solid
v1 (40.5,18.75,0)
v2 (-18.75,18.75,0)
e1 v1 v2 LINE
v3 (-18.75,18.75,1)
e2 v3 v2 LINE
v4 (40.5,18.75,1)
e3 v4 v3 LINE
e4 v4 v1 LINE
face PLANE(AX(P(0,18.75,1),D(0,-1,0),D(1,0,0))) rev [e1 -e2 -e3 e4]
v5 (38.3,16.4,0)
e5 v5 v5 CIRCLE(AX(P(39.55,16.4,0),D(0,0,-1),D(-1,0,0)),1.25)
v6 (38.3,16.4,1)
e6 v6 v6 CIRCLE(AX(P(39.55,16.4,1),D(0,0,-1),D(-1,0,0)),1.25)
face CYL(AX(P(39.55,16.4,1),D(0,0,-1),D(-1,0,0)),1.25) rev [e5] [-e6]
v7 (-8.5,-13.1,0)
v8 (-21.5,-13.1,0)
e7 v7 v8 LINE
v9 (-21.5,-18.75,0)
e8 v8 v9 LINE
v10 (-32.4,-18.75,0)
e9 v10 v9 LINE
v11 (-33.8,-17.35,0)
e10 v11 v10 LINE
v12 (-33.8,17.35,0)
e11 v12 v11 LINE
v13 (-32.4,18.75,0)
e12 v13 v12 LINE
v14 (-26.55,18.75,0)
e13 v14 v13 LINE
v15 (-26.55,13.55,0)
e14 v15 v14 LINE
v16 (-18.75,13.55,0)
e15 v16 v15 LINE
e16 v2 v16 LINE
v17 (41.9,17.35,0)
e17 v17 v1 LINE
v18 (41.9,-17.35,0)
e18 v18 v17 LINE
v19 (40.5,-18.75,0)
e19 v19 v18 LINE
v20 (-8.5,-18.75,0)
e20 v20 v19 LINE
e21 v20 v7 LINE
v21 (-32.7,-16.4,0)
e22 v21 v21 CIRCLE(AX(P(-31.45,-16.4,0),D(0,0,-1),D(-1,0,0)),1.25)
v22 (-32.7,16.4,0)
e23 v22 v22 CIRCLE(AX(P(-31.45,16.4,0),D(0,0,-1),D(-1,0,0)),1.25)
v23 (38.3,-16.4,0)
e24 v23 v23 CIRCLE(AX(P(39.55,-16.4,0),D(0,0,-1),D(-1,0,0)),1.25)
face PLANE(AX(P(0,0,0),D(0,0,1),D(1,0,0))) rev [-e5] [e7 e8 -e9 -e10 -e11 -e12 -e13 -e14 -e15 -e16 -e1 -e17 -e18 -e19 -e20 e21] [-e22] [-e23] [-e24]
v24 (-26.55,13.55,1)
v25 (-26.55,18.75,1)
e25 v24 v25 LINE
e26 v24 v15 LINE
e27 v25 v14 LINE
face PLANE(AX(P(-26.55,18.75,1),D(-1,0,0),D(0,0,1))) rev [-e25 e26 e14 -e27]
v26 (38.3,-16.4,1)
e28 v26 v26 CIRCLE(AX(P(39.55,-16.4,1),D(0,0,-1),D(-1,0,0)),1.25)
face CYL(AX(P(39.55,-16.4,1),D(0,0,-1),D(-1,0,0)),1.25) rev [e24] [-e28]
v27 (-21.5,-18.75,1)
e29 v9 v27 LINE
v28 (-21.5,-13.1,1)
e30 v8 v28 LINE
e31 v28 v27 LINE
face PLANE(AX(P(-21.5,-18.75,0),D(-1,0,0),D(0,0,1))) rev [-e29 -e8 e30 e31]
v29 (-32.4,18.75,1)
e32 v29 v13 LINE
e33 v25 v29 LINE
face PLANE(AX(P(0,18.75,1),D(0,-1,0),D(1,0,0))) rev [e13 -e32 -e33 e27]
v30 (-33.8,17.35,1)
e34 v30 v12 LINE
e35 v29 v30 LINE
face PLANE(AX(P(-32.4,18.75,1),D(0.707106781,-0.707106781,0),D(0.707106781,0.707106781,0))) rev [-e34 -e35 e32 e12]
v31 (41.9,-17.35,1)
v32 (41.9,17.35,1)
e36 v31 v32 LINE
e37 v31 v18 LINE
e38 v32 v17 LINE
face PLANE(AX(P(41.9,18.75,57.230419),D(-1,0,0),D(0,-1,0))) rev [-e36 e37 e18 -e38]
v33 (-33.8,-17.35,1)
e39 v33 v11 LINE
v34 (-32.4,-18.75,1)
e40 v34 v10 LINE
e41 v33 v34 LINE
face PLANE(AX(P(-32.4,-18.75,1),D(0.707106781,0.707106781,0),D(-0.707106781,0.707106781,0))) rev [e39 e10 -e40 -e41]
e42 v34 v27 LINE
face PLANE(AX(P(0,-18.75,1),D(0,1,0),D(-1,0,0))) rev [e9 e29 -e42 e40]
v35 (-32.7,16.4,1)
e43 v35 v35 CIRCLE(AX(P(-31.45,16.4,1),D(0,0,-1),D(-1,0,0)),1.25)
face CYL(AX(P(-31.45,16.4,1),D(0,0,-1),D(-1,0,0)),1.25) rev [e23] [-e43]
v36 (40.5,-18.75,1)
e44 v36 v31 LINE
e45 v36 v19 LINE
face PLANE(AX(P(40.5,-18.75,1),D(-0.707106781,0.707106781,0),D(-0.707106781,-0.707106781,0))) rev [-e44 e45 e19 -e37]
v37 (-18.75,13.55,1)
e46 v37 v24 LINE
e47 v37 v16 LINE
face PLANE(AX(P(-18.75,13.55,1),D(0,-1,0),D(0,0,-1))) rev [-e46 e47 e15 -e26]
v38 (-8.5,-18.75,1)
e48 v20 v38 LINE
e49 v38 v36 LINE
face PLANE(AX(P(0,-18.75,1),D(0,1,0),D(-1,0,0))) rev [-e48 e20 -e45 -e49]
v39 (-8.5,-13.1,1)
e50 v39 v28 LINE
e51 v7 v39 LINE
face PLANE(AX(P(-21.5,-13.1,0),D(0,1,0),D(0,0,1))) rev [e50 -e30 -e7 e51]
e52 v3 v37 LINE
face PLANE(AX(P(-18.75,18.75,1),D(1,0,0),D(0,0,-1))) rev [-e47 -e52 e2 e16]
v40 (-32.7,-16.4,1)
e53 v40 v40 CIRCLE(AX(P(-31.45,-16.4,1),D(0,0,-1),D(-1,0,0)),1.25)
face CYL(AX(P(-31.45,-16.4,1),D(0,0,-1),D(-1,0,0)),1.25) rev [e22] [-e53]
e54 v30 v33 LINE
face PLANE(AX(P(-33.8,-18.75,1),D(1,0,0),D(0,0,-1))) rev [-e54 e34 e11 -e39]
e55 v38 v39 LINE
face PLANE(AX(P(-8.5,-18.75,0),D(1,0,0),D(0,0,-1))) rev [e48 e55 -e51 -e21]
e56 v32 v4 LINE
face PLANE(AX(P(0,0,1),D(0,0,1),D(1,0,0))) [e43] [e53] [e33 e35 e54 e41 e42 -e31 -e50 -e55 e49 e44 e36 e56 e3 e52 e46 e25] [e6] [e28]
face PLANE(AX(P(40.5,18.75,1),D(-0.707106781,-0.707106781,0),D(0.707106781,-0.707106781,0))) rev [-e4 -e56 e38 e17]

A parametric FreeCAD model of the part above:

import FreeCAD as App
import Part
import Sketcher

V = App.Vector
Q = App.Units.Quantity

doc = App.newDocument("Part")
params = doc.addObject("Spreadsheet::Sheet", "Params")
for row, (alias, value) in enumerate([
    ("sketch1_width", "33.8 mm"),
    ("sketch1_height", "37.5 mm"),
    ("pad1_length", "1 mm"),
    ("sketch2_width", "41.9 mm"),
    ("sketch2_height", "37.5 mm"),
    ("pad2_length", "1 mm"),
    ("sketch3_diameter", "2.5 mm"),
    ("sketch4_width", "1.4 mm"),
    ("sketch5_width", "13 mm"),
    ("sketch5_height", "5.65 mm"),
    ("sketch6_width", "7.8 mm"),
    ("sketch6_height", "5.2 mm"),
], start=1):
    params.set(f"A{row}", alias)
    params.set(f"B{row}", "=" + value)
    params.setAlias(f"B{row}", alias)

body = doc.addObject("PartDesign::Body", "Body")

# Sketch on XY plane
sketch1 = body.newObject("Sketcher::SketchObject", "Sketch")
sketch1.AttachmentSupport = (doc.getObject("XY_Plane"), [""])
sketch1.MapMode = "FlatFace"
sketch1.addGeometry([
    Part.LineSegment(V(-33.8, 18.75, 0), V(-33.8, -18.75, 0)),
    Part.LineSegment(V(-33.8, -18.75, 0), V(0, -18.75, 0)),
    Part.LineSegment(V(0, -18.75, 0), V(0, 18.75, 0)),
    Part.LineSegment(V(0, 18.75, 0), V(-33.8, 18.75, 0)),
], False)
sketch1.addConstraint([
    Sketcher.Constraint("Coincident", 0, 2, 1, 1),
    Sketcher.Constraint("Coincident", 1, 2, 2, 1),
    Sketcher.Constraint("Coincident", 2, 2, 3, 1),
    Sketcher.Constraint("Coincident", 3, 2, 0, 1),
    Sketcher.Constraint("Vertical", 0),
    Sketcher.Constraint("Horizontal", 1),
    Sketcher.Constraint("Vertical", 2),
    Sketcher.Constraint("Horizontal", 3),
    Sketcher.Constraint("Symmetric", 1, 2, 2, 2, -1, 1),
    Sketcher.Constraint("DistanceX", 1, 1, 1, 2, Q("33.8 mm")),
    Sketcher.Constraint("DistanceY", 0, 2, 0, 1, Q("37.5 mm")),
])
sketch1.setExpression("Constraints[9]", "Params.sketch1_width")
sketch1.setExpression("Constraints[10]", "Params.sketch1_height")
pad1 = body.newObject("PartDesign::Pad", "Pad")
pad1.Profile = sketch1
pad1.setExpression("Length", "Params.pad1_length")

# Sketch on XY plane
sketch2 = body.newObject("Sketcher::SketchObject", "Sketch001")
sketch2.AttachmentSupport = (doc.getObject("XY_Plane"), [""])
sketch2.MapMode = "FlatFace"
sketch2.addGeometry([
    Part.LineSegment(V(0, 18.75, 0), V(0, -18.75, 0)),
    Part.LineSegment(V(0, -18.75, 0), V(41.9, -18.75, 0)),
    Part.LineSegment(V(41.9, -18.75, 0), V(41.9, 18.75, 0)),
    Part.LineSegment(V(41.9, 18.75, 0), V(0, 18.75, 0)),
], False)
sketch2.addConstraint([
    Sketcher.Constraint("Coincident", 0, 2, 1, 1),
    Sketcher.Constraint("Coincident", 1, 2, 2, 1),
    Sketcher.Constraint("Coincident", 2, 2, 3, 1),
    Sketcher.Constraint("Coincident", 3, 2, 0, 1),
    Sketcher.Constraint("Vertical", 0),
    Sketcher.Constraint("Horizontal", 1),
    Sketcher.Constraint("Vertical", 2),
    Sketcher.Constraint("Horizontal", 3),
    Sketcher.Constraint("Symmetric", 0, 2, 3, 2, -1, 1),
    Sketcher.Constraint("DistanceX", 1, 1, 1, 2, Q("41.9 mm")),
    Sketcher.Constraint("DistanceY", 0, 2, 0, 1, Q("37.5 mm")),
])
sketch2.setExpression("Constraints[9]", "Params.sketch2_width")
sketch2.setExpression("Constraints[10]", "Params.sketch2_height")
pad2 = body.newObject("PartDesign::Pad", "Pad001")
pad2.Profile = sketch2
pad2.setExpression("Length", "Params.pad2_length")

# Sketch on XY plane
sketch3 = body.newObject("Sketcher::SketchObject", "Sketch002")
sketch3.AttachmentSupport = (doc.getObject("XY_Plane"), [""])
sketch3.MapMode = "FlatFace"
sketch3.addGeometry([
    Part.Circle(V(-31.45, -16.4, 0), V(0, 0, 1), 1.25),
    Part.Circle(V(39.55, -16.4, 0), V(0, 0, 1), 1.25),
    Part.Circle(V(39.55, 16.4, 0), V(0, 0, 1), 1.25),
    Part.Circle(V(-31.45, 16.4, 0), V(0, 0, 1), 1.25),
], False)
sketch3.addConstraint([
    Sketcher.Constraint("Equal", 0, 1),
    Sketcher.Constraint("Equal", 1, 2),
    Sketcher.Constraint("Equal", 2, 3),
    Sketcher.Constraint("Symmetric", 1, 3, 2, 3, -1),
    Sketcher.Constraint("Symmetric", 0, 3, 3, 3, -1),
    Sketcher.Constraint("Horizontal", 0, 3, 1, 3),
    Sketcher.Constraint("Diameter", 0, Q("2.5 mm")),
    Sketcher.Constraint("DistanceX", 0, 3, 1, 3, Q("71 mm")),
    Sketcher.Constraint("DistanceY", 0, 3, -1, 1, Q("16.4 mm")),
    Sketcher.Constraint("DistanceX", 0, 3, -1, 1, Q("31.45 mm")),
])
sketch3.setExpression("Constraints[6]", "Params.sketch3_diameter")
pocket1 = body.newObject("PartDesign::Pocket", "Pocket")
pocket1.Profile = sketch3
pocket1.Type = "ThroughAll"
pocket1.Reversed = True

# Sketch on XY plane
sketch4 = body.newObject("Sketcher::SketchObject", "Sketch003")
sketch4.AttachmentSupport = (doc.getObject("XY_Plane"), [""])
sketch4.MapMode = "FlatFace"
sketch4.addGeometry([
    Part.LineSegment(V(40.5, 18.75, 0), V(41.9, 18.75, 0)),  # 0
    Part.LineSegment(V(41.9, 18.75, 0), V(41.9, 17.35, 0)),  # 1
    Part.LineSegment(V(41.9, 17.35, 0), V(40.5, 18.75, 0)),  # 2
    Part.LineSegment(V(41.9, -17.35, 0), V(41.9, -18.75, 0)),  # 3
    Part.LineSegment(V(41.9, -18.75, 0), V(40.5, -18.75, 0)),  # 4
    Part.LineSegment(V(40.5, -18.75, 0), V(41.9, -17.35, 0)),  # 5
    Part.LineSegment(V(-32.4, -18.75, 0), V(-33.8, -18.75, 0)),  # 6
    Part.LineSegment(V(-33.8, -18.75, 0), V(-33.8, -17.35, 0)),  # 7
    Part.LineSegment(V(-33.8, -17.35, 0), V(-32.4, -18.75, 0)),  # 8
    Part.LineSegment(V(-33.8, 17.35, 0), V(-33.8, 18.75, 0)),  # 9
    Part.LineSegment(V(-33.8, 18.75, 0), V(-32.4, 18.75, 0)),  # 10
    Part.LineSegment(V(-32.4, 18.75, 0), V(-33.8, 17.35, 0)),  # 11
], False)
sketch4.addConstraint([
    Sketcher.Constraint("Coincident", 0, 2, 1, 1),
    Sketcher.Constraint("Coincident", 1, 2, 2, 1),
    Sketcher.Constraint("Coincident", 2, 2, 0, 1),
    Sketcher.Constraint("Coincident", 3, 2, 4, 1),
    Sketcher.Constraint("Coincident", 4, 2, 5, 1),
    Sketcher.Constraint("Coincident", 5, 2, 3, 1),
    Sketcher.Constraint("Coincident", 6, 2, 7, 1),
    Sketcher.Constraint("Coincident", 7, 2, 8, 1),
    Sketcher.Constraint("Coincident", 8, 2, 6, 1),
    Sketcher.Constraint("Coincident", 9, 2, 10, 1),
    Sketcher.Constraint("Coincident", 10, 2, 11, 1),
    Sketcher.Constraint("Coincident", 11, 2, 9, 1),
    Sketcher.Constraint("Horizontal", 0),
    Sketcher.Constraint("Vertical", 1),
    Sketcher.Constraint("Vertical", 3),
    Sketcher.Constraint("Horizontal", 4),
    Sketcher.Constraint("Horizontal", 6),
    Sketcher.Constraint("Vertical", 7),
    Sketcher.Constraint("Vertical", 9),
    Sketcher.Constraint("Horizontal", 10),
    Sketcher.Constraint("Symmetric", 0, 2, 3, 2, -1),
    Sketcher.Constraint("Symmetric", 6, 2, 9, 2, -1),
    Sketcher.Constraint("Perpendicular", 2, 5),
    Sketcher.Constraint("Perpendicular", 5, 8),
    Sketcher.Constraint("Perpendicular", 8, 11),
    Sketcher.Constraint("Horizontal", 4, 2, 6, 2),
    Sketcher.Constraint("Horizontal", 5, 2, 7, 2),
    Sketcher.Constraint("Horizontal", 1, 2, 11, 2),
    Sketcher.Constraint("Vertical", 2, 2, 4, 2),
    Sketcher.Constraint("Vertical", 8, 2, 10, 2),
    Sketcher.Constraint("DistanceX", 0, 1, 0, 2, Q("1.4 mm")),
    Sketcher.Constraint("DistanceX", -1, 1, 0, 2, Q("41.9 mm")),
    Sketcher.Constraint("DistanceX", 6, 2, -1, 1, Q("33.8 mm")),
    Sketcher.Constraint("DistanceY", 3, 2, 1, 2, Q("36.1 mm")),
])
sketch4.setExpression("Constraints[30]", "Params.sketch4_width")
pocket2 = body.newObject("PartDesign::Pocket", "Pocket001")
pocket2.Profile = sketch4
pocket2.Type = "ThroughAll"
pocket2.Reversed = True

# Sketch on XY plane
sketch5 = body.newObject("Sketcher::SketchObject", "Sketch004")
sketch5.AttachmentSupport = (doc.getObject("XY_Plane"), [""])
sketch5.MapMode = "FlatFace"
sketch5.AttachmentOffset = App.Placement(V(0, 0, 1), App.Rotation())
sketch5.addGeometry([
    Part.LineSegment(V(-21.5, -13.1, 0), V(-21.5, -18.75, 0)),
    Part.LineSegment(V(-21.5, -18.75, 0), V(-8.5, -18.75, 0)),
    Part.LineSegment(V(-8.5, -18.75, 0), V(-8.5, -13.1, 0)),
    Part.LineSegment(V(-8.5, -13.1, 0), V(-21.5, -13.1, 0)),
], False)
sketch5.addConstraint([
    Sketcher.Constraint("Coincident", 0, 2, 1, 1),
    Sketcher.Constraint("Coincident", 1, 2, 2, 1),
    Sketcher.Constraint("Coincident", 2, 2, 3, 1),
    Sketcher.Constraint("Coincident", 3, 2, 0, 1),
    Sketcher.Constraint("Vertical", 0),
    Sketcher.Constraint("Horizontal", 1),
    Sketcher.Constraint("Vertical", 2),
    Sketcher.Constraint("Horizontal", 3),
    Sketcher.Constraint("DistanceX", 1, 1, 1, 2, Q("13 mm")),
    Sketcher.Constraint("DistanceY", 0, 2, 0, 1, Q("5.65 mm")),
    Sketcher.Constraint("DistanceX", 0, 2, -1, 1, Q("21.5 mm")),
    Sketcher.Constraint("DistanceY", 2, 2, -1, 1, Q("13.1 mm")),
])
sketch5.setExpression("Constraints[8]", "Params.sketch5_width")
sketch5.setExpression("Constraints[9]", "Params.sketch5_height")
pocket3 = body.newObject("PartDesign::Pocket", "Pocket002")
pocket3.Profile = sketch5
pocket3.Type = "ThroughAll"

# Sketch on XY plane
sketch6 = body.newObject("Sketcher::SketchObject", "Sketch005")
sketch6.AttachmentSupport = (doc.getObject("XY_Plane"), [""])
sketch6.MapMode = "FlatFace"
sketch6.addGeometry([
    Part.LineSegment(V(-18.75, 18.75, 0), V(-18.75, 13.55, 0)),
    Part.LineSegment(V(-18.75, 13.55, 0), V(-26.55, 13.55, 0)),
    Part.LineSegment(V(-26.55, 13.55, 0), V(-26.55, 18.75, 0)),
    Part.LineSegment(V(-26.55, 18.75, 0), V(-18.75, 18.75, 0)),
], False)
sketch6.addConstraint([
    Sketcher.Constraint("Coincident", 0, 2, 1, 1),
    Sketcher.Constraint("Coincident", 1, 2, 2, 1),
    Sketcher.Constraint("Coincident", 2, 2, 3, 1),
    Sketcher.Constraint("Coincident", 3, 2, 0, 1),
    Sketcher.Constraint("Vertical", 0),
    Sketcher.Constraint("Horizontal", 1),
    Sketcher.Constraint("Vertical", 2),
    Sketcher.Constraint("Horizontal", 3),
    Sketcher.Constraint("DistanceX", 1, 2, 1, 1, Q("7.8 mm")),
    Sketcher.Constraint("DistanceY", 0, 2, 0, 1, Q("5.2 mm")),
    Sketcher.Constraint("DistanceX", 0, 2, -1, 1, Q("18.75 mm")),
    Sketcher.Constraint("DistanceY", -1, 1, 0, 2, Q("13.55 mm")),
])
sketch6.setExpression("Constraints[8]", "Params.sketch6_width")
sketch6.setExpression("Constraints[9]", "Params.sketch6_height")
pocket4 = body.newObject("PartDesign::Pocket", "Pocket003")
pocket4.Profile = sketch6
pocket4.Type = "ThroughAll"
pocket4.Reversed = True

doc.recompute()
